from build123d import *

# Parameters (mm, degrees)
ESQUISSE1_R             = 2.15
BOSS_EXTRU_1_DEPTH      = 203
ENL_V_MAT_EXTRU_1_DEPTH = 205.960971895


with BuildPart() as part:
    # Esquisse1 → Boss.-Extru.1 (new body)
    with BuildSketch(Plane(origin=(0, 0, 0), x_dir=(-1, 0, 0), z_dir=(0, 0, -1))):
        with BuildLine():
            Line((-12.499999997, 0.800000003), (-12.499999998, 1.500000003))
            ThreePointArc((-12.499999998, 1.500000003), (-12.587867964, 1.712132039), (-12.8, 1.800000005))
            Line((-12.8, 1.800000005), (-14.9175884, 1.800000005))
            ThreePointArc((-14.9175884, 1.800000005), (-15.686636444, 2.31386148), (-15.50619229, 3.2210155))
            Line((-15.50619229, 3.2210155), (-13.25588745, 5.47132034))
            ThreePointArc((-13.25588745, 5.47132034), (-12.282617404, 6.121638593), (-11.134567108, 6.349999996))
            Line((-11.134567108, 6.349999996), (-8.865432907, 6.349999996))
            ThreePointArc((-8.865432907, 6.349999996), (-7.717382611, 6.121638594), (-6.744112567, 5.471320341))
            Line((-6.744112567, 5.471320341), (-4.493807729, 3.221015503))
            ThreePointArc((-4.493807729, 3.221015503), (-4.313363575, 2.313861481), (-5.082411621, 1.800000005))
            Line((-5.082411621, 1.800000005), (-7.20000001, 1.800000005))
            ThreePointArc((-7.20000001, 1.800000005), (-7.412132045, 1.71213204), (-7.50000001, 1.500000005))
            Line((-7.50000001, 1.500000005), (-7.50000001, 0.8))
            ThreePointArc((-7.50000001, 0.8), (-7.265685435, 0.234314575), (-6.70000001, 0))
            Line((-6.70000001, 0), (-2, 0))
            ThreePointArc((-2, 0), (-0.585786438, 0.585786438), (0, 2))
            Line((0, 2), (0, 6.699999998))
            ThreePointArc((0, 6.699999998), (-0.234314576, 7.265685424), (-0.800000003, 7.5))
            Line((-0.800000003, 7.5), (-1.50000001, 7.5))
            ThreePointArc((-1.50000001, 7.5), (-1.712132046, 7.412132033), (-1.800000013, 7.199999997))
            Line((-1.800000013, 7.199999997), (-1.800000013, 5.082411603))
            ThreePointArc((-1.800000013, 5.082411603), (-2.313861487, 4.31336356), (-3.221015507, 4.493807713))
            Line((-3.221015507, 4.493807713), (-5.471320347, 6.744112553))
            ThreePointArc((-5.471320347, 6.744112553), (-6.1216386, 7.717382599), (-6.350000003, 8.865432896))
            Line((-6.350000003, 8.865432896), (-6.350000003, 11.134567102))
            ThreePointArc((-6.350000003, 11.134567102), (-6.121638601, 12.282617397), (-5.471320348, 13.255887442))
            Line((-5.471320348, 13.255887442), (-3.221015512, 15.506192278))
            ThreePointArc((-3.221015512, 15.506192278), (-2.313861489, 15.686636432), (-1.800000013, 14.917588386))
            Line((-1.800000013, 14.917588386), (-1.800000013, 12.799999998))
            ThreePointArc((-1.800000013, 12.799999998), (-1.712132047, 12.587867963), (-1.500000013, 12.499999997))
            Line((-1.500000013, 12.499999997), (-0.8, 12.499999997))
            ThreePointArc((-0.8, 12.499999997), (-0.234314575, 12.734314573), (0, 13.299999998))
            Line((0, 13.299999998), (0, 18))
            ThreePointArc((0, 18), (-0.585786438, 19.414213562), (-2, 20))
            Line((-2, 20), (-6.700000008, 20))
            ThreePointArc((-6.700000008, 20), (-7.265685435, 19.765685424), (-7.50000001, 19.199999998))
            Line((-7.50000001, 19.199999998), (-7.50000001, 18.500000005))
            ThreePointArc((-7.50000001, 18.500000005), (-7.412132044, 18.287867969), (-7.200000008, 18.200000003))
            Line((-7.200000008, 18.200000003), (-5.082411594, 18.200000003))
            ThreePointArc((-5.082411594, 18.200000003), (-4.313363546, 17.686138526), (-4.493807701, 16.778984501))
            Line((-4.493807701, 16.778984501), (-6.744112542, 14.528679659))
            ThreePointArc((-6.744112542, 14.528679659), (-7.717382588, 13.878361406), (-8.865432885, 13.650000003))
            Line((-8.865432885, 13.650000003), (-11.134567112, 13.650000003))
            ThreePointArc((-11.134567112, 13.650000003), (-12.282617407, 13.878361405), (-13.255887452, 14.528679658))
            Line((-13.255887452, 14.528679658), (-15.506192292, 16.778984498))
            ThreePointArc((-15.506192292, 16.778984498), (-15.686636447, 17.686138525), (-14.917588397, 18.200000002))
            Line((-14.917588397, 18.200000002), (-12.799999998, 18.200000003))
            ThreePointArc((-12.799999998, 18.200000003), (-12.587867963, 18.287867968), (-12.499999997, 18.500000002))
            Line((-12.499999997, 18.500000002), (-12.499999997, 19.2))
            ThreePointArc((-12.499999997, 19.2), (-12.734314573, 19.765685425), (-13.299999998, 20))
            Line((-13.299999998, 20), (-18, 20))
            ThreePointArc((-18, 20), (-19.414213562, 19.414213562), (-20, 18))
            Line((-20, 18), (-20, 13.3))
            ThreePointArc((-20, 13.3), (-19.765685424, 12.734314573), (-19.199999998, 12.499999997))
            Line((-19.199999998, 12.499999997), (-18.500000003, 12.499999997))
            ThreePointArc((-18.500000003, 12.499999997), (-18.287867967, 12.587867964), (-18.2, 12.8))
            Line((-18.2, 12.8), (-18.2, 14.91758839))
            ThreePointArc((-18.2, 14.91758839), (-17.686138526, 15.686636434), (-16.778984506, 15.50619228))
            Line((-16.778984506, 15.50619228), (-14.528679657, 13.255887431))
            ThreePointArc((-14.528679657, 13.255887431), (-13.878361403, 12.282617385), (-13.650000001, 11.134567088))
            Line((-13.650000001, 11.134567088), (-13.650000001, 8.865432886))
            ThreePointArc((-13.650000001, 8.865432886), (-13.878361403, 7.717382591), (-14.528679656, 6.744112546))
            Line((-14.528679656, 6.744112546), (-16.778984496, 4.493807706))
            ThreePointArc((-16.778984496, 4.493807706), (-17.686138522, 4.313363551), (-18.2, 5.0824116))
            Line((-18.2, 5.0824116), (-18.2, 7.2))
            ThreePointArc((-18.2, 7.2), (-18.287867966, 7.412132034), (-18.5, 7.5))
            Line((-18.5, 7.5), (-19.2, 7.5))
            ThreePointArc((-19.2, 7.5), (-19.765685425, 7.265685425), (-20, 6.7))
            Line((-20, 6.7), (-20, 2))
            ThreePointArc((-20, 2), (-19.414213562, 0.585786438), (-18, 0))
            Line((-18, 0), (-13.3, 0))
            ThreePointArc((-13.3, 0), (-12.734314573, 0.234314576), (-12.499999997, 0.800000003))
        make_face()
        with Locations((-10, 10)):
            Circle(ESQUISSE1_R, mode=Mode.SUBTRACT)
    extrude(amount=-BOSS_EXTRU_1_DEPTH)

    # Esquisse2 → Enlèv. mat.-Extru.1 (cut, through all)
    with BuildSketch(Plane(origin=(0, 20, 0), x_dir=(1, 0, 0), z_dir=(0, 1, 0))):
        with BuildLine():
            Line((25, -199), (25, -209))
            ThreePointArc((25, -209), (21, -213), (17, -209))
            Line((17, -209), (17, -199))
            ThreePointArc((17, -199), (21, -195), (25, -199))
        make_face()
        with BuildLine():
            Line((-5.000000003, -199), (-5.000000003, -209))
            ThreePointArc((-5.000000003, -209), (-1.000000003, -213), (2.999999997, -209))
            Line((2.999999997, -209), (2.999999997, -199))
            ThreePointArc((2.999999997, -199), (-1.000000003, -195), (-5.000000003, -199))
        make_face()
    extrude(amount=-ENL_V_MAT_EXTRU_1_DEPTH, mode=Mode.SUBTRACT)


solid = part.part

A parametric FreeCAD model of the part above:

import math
import FreeCAD as App
import Part
import Sketcher

V = App.Vector

doc = App.newDocument("Part")
body = doc.addObject("PartDesign::Body", "Body")

# Sketch on XY plane
sketch1 = doc.addObject("Sketcher::SketchObject", "Sketch")
body.addObject(sketch1)
sketch1.AttachmentSupport = (doc.XY_Plane, [""])
sketch1.MapMode = "FlatFace"
sketch1.addGeometry([
    Part.LineSegment(V(12.5, 0.8, 0), V(12.5, 1.5, 0)),  # 0
    Part.ArcOfCircle(Part.Circle(V(12.8, 1.5, 0), V(0, 0, 1), 0.3), math.radians(90), math.radians(180)),  # 1
    Part.LineSegment(V(12.8, 1.8, 0), V(14.92, 1.8, 0)),  # 2
    Part.ArcOfCircle(Part.Circle(V(14.92, 2.63, 0), V(0, 0, 1), 0.83), math.radians(-90), math.radians(45)),  # 3
    Part.LineSegment(V(15.51, 3.22, 0), V(13.26, 5.47, 0)),  # 4
    Part.ArcOfCircle(Part.Circle(V(11.13, 3.35, 0), V(0, 0, 1), 3), math.radians(45), math.radians(90)),  # 5
    Part.LineSegment(V(11.13, 6.35, 0), V(8.87, 6.35, 0)),  # 6
    Part.ArcOfCircle(Part.Circle(V(8.87, 3.35, 0), V(0, 0, 1), 3), math.radians(90), math.radians(135)),  # 7
    Part.LineSegment(V(6.74, 5.47, 0), V(4.49, 3.22, 0)),  # 8
    Part.ArcOfCircle(Part.Circle(V(5.08, 2.63, 0), V(0, 0, 1), 0.83), math.radians(135), math.radians(270)),  # 9
    Part.LineSegment(V(5.08, 1.8, 0), V(7.2, 1.8, 0)),  # 10
    Part.ArcOfCircle(Part.Circle(V(7.2, 1.5, 0), V(0, 0, 1), 0.3), math.radians(0), math.radians(90)),  # 11
    Part.LineSegment(V(7.5, 1.5, 0), V(7.5, 0.8, 0)),  # 12
    Part.ArcOfCircle(Part.Circle(V(6.7, 0.8, 0), V(0, 0, 1), 0.8), math.radians(-90), math.radians(0)),  # 13
    Part.LineSegment(V(6.7, 0, 0), V(2, 0, 0)),  # 14
    Part.ArcOfCircle(Part.Circle(V(2, 2, 0), V(0, 0, 1), 2), math.radians(-180), math.radians(-90)),  # 15
    Part.LineSegment(V(0, 2, 0), V(0, 6.7, 0)),  # 16
    Part.ArcOfCircle(Part.Circle(V(0.8, 6.7, 0), V(0, 0, 1), 0.8), math.radians(90), math.radians(180)),  # 17
    Part.LineSegment(V(0.8, 7.5, 0), V(1.5, 7.5, 0)),  # 18
    Part.ArcOfCircle(Part.Circle(V(1.5, 7.2, 0), V(0, 0, 1), 0.3), math.radians(0), math.radians(90)),  # 19
    Part.LineSegment(V(1.8, 7.2, 0), V(1.8, 5.08, 0)),  # 20
    Part.ArcOfCircle(Part.Circle(V(2.63, 5.08, 0), V(0, 0, 1), 0.83), math.radians(-180), math.radians(-45)),  # 21
    Part.LineSegment(V(3.22, 4.49, 0), V(5.47, 6.74, 0)),  # 22
    Part.ArcOfCircle(Part.Circle(V(3.35, 8.87, 0), V(0, 0, 1), 3), math.radians(-45), math.radians(0)),  # 23
    Part.LineSegment(V(6.35, 8.87, 0), V(6.35, 11.13, 0)),  # 24
    Part.ArcOfCircle(Part.Circle(V(3.35, 11.13, 0), V(0, 0, 1), 3), math.radians(0), math.radians(45)),  # 25
    Part.LineSegment(V(5.47, 13.26, 0), V(3.22, 15.51, 0)),  # 26
    Part.ArcOfCircle(Part.Circle(V(2.63, 14.92, 0), V(0, 0, 1), 0.83), math.radians(45), math.radians(180)),  # 27
    Part.LineSegment(V(1.8, 14.92, 0), V(1.8, 12.8, 0)),  # 28
    Part.ArcOfCircle(Part.Circle(V(1.5, 12.8, 0), V(0, 0, 1), 0.3), math.radians(-90), math.radians(0)),  # 29
    Part.LineSegment(V(1.5, 12.5, 0), V(0.8, 12.5, 0)),  # 30
    Part.ArcOfCircle(Part.Circle(V(0.8, 13.3, 0), V(0, 0, 1), 0.8), math.radians(-180), math.radians(-90)),  # 31
    Part.LineSegment(V(0, 13.3, 0), V(0, 18, 0)),  # 32
    Part.ArcOfCircle(Part.Circle(V(2, 18, 0), V(0, 0, 1), 2), math.radians(90), math.radians(180)),  # 33
    Part.LineSegment(V(2, 20, 0), V(6.7, 20, 0)),  # 34
    Part.ArcOfCircle(Part.Circle(V(6.7, 19.2, 0), V(0, 0, 1), 0.8), math.radians(0), math.radians(90)),  # 35
    Part.LineSegment(V(7.5, 19.2, 0), V(7.5, 18.5, 0)),  # 36
    Part.ArcOfCircle(Part.Circle(V(7.2, 18.5, 0), V(0, 0, 1), 0.3), math.radians(-90), math.radians(0)),  # 37
    Part.LineSegment(V(7.2, 18.2, 0), V(5.08, 18.2, 0)),  # 38
    Part.ArcOfCircle(Part.Circle(V(5.08, 17.37, 0), V(0, 0, 1), 0.83), math.radians(90), math.radians(225)),  # 39
    Part.LineSegment(V(4.49, 16.78, 0), V(6.74, 14.53, 0)),  # 40
    Part.ArcOfCircle(Part.Circle(V(8.87, 16.65, 0), V(0, 0, 1), 3), math.radians(-135), math.radians(-90)),  # 41
    Part.LineSegment(V(8.87, 13.65, 0), V(11.13, 13.65, 0)),  # 42
    Part.ArcOfCircle(Part.Circle(V(11.13, 16.65, 0), V(0, 0, 1), 3), math.radians(-90), math.radians(-45)),  # 43
    Part.LineSegment(V(13.26, 14.53, 0), V(15.51, 16.78, 0)),  # 44
    Part.ArcOfCircle(Part.Circle(V(14.92, 17.37, 0), V(0, 0, 1), 0.83), math.radians(-45), math.radians(90)),  # 45
    Part.LineSegment(V(14.92, 18.2, 0), V(12.8, 18.2, 0)),  # 46
    Part.ArcOfCircle(Part.Circle(V(12.8, 18.5, 0), V(0, 0, 1), 0.3), math.radians(-180), math.radians(-90)),  # 47
    Part.LineSegment(V(12.5, 18.5, 0), V(12.5, 19.2, 0)),  # 48
    Part.ArcOfCircle(Part.Circle(V(13.3, 19.2, 0), V(0, 0, 1), 0.8), math.radians(90), math.radians(180)),  # 49
    Part.LineSegment(V(13.3, 20, 0), V(18, 20, 0)),  # 50
    Part.ArcOfCircle(Part.Circle(V(18, 18, 0), V(0, 0, 1), 2), math.radians(0), math.radians(90)),  # 51
    Part.LineSegment(V(20, 18, 0), V(20, 13.3, 0)),  # 52
    Part.ArcOfCircle(Part.Circle(V(19.2, 13.3, 0), V(0, 0, 1), 0.8), math.radians(-90), math.radians(0)),  # 53
    Part.LineSegment(V(19.2, 12.5, 0), V(18.5, 12.5, 0)),  # 54
    Part.ArcOfCircle(Part.Circle(V(18.5, 12.8, 0), V(0, 0, 1), 0.3), math.radians(-180), math.radians(-90)),  # 55
    Part.LineSegment(V(18.2, 12.8, 0), V(18.2, 14.92, 0)),  # 56
    Part.ArcOfCircle(Part.Circle(V(17.37, 14.92, 0), V(0, 0, 1), 0.83), math.radians(0), math.radians(135)),  # 57
    Part.LineSegment(V(16.78, 15.51, 0), V(14.53, 13.26, 0)),  # 58
    Part.ArcOfCircle(Part.Circle(V(16.65, 11.13, 0), V(0, 0, 1), 3), math.radians(135), math.radians(180)),  # 59
    Part.LineSegment(V(13.65, 11.13, 0), V(13.65, 8.87, 0)),  # 60
    Part.ArcOfCircle(Part.Circle(V(16.65, 8.87, 0), V(0, 0, 1), 3), math.radians(180), math.radians(225)),  # 61
    Part.LineSegment(V(14.53, 6.74, 0), V(16.78, 4.49, 0)),  # 62
    Part.ArcOfCircle(Part.Circle(V(17.37, 5.08, 0), V(0, 0, 1), 0.83), math.radians(-135), math.radians(0)),  # 63
    Part.LineSegment(V(18.2, 5.08, 0), V(18.2, 7.2, 0)),  # 64
    Part.ArcOfCircle(Part.Circle(V(18.5, 7.2, 0), V(0, 0, 1), 0.3), math.radians(90), math.radians(180)),  # 65
    Part.LineSegment(V(18.5, 7.5, 0), V(19.2, 7.5, 0)),  # 66
    Part.ArcOfCircle(Part.Circle(V(19.2, 6.7, 0), V(0, 0, 1), 0.8), math.radians(0), math.radians(90)),  # 67
    Part.LineSegment(V(20, 6.7, 0), V(20, 2, 0)),  # 68
    Part.ArcOfCircle(Part.Circle(V(18, 2, 0), V(0, 0, 1), 2), math.radians(-90), math.radians(0)),  # 69
    Part.LineSegment(V(18, 0, 0), V(13.3, 0, 0)),  # 70
    Part.ArcOfCircle(Part.Circle(V(13.3, 0.8, 0), V(0, 0, 1), 0.8), math.radians(180), math.radians(270)),  # 71
    Part.Circle(V(10, 10, 0), V(0, 0, 1), 2.15),  # 72
], False)
sketch1.addConstraint([
    Sketcher.Constraint("Tangent", 0, 2, 1, 2),
    Sketcher.Constraint("Tangent", 1, 1, 2, 1),
    Sketcher.Constraint("Tangent", 2, 2, 3, 1),
    Sketcher.Constraint("Tangent", 3, 2, 4, 1),
    Sketcher.Constraint("Tangent", 4, 2, 5, 1),
    Sketcher.Constraint("Tangent", 5, 2, 6, 1),
    Sketcher.Constraint("Tangent", 6, 2, 7, 1),
    Sketcher.Constraint("Tangent", 7, 2, 8, 1),
    Sketcher.Constraint("Tangent", 8, 2, 9, 1),
    Sketcher.Constraint("Tangent", 9, 2, 10, 1),
    Sketcher.Constraint("Tangent", 10, 2, 11, 2),
    Sketcher.Constraint("Tangent", 11, 1, 12, 1),
    Sketcher.Constraint("Tangent", 12, 2, 13, 2),
    Sketcher.Constraint("Tangent", 13, 1, 14, 1),
    Sketcher.Constraint("Tangent", 14, 2, 15, 2),
    Sketcher.Constraint("Tangent", 15, 1, 16, 1),
    Sketcher.Constraint("Tangent", 16, 2, 17, 2),
    Sketcher.Constraint("Tangent", 17, 1, 18, 1),
    Sketcher.Constraint("Tangent", 18, 2, 19, 2),
    Sketcher.Constraint("Tangent", 19, 1, 20, 1),
    Sketcher.Constraint("Tangent", 20, 2, 21, 1),
    Sketcher.Constraint("Tangent", 21, 2, 22, 1),
    Sketcher.Constraint("Tangent", 22, 2, 23, 1),
    Sketcher.Constraint("Tangent", 23, 2, 24, 1),
    Sketcher.Constraint("Tangent", 24, 2, 25, 1),
    Sketcher.Constraint("Tangent", 25, 2, 26, 1),
    Sketcher.Constraint("Tangent", 26, 2, 27, 1),
    Sketcher.Constraint("Tangent", 27, 2, 28, 1),
    Sketcher.Constraint("Tangent", 28, 2, 29, 2),
    Sketcher.Constraint("Tangent", 29, 1, 30, 1),
    Sketcher.Constraint("Tangent", 30, 2, 31, 2),
    Sketcher.Constraint("Tangent", 31, 1, 32, 1),
    Sketcher.Constraint("Tangent", 32, 2, 33, 2),
    Sketcher.Constraint("Tangent", 33, 1, 34, 1),
    Sketcher.Constraint("Tangent", 34, 2, 35, 2),
    Sketcher.Constraint("Tangent", 35, 1, 36, 1),
    Sketcher.Constraint("Tangent", 36, 2, 37, 2),
    Sketcher.Constraint("Tangent", 37, 1, 38, 1),
    Sketcher.Constraint("Tangent", 38, 2, 39, 1),
    Sketcher.Constraint("Tangent", 39, 2, 40, 1),
    Sketcher.Constraint("Tangent", 40, 2, 41, 1),
    Sketcher.Constraint("Tangent", 41, 2, 42, 1),
    Sketcher.Constraint("Tangent", 42, 2, 43, 1),
    Sketcher.Constraint("Tangent", 43, 2, 44, 1),
    Sketcher.Constraint("Tangent", 44, 2, 45, 1),
    Sketcher.Constraint("Tangent", 45, 2, 46, 1),
    Sketcher.Constraint("Tangent", 46, 2, 47, 2),
    Sketcher.Constraint("Tangent", 47, 1, 48, 1),
    Sketcher.Constraint("Tangent", 48, 2, 49, 2),
    Sketcher.Constraint("Tangent", 49, 1, 50, 1),
    Sketcher.Constraint("Tangent", 50, 2, 51, 2),
    Sketcher.Constraint("Tangent", 51, 1, 52, 1),
    Sketcher.Constraint("Tangent", 52, 2, 53, 2),
    Sketcher.Constraint("Tangent", 53, 1, 54, 1),
    Sketcher.Constraint("Tangent", 54, 2, 55, 2),
    Sketcher.Constraint("Tangent", 55, 1, 56, 1),
    Sketcher.Constraint("Tangent", 56, 2, 57, 1),
    Sketcher.Constraint("Tangent", 57, 2, 58, 1),
    Sketcher.Constraint("Tangent", 58, 2, 59, 1),
    Sketcher.Constraint("Tangent", 59, 2, 60, 1),
    Sketcher.Constraint("Tangent", 60, 2, 61, 1),
    Sketcher.Constraint("Tangent", 61, 2, 62, 1),
    Sketcher.Constraint("Tangent", 62, 2, 63, 1),
    Sketcher.Constraint("Tangent", 63, 2, 64, 1),
    Sketcher.Constraint("Tangent", 64, 2, 65, 2),
    Sketcher.Constraint("Tangent", 65, 1, 66, 1),
    Sketcher.Constraint("Tangent", 66, 2, 67, 2),
    Sketcher.Constraint("Tangent", 67, 1, 68, 1),
    Sketcher.Constraint("Tangent", 68, 2, 69, 2),
    Sketcher.Constraint("Tangent", 69, 1, 70, 1),
    Sketcher.Constraint("Tangent", 70, 2, 71, 2),
    Sketcher.Constraint("Tangent", 71, 1, 0, 1),
    Sketcher.Constraint("Vertical", 0),
    Sketcher.Constraint("Horizontal", 2),
    Sketcher.Constraint("Horizontal", 6),
    Sketcher.Constraint("Horizontal", 10),
    Sketcher.Constraint("Vertical", 12),
    Sketcher.Constraint("Horizontal", 14),
    Sketcher.Constraint("Vertical", 16),
    Sketcher.Constraint("Horizontal", 18),
    Sketcher.Constraint("Vertical", 20),
    Sketcher.Constraint("Vertical", 24),
    Sketcher.Constraint("Vertical", 28),
    Sketcher.Constraint("Horizontal", 30),
    Sketcher.Constraint("Vertical", 32),
    Sketcher.Constraint("Horizontal", 34),
    Sketcher.Constraint("Vertical", 36),
    Sketcher.Constraint("Horizontal", 38),
    Sketcher.Constraint("Horizontal", 42),
    Sketcher.Constraint("Horizontal", 46),
    Sketcher.Constraint("Vertical", 48),
    Sketcher.Constraint("Horizontal", 50),
    Sketcher.Constraint("Vertical", 52),
    Sketcher.Constraint("Horizontal", 54),
    Sketcher.Constraint("Vertical", 56),
    Sketcher.Constraint("Vertical", 60),
    Sketcher.Constraint("Vertical", 64),
    Sketcher.Constraint("Horizontal", 66),
    Sketcher.Constraint("Vertical", 68),
    Sketcher.Constraint("Horizontal", 70),
    Sketcher.Constraint("Equal", 5, 7),
    Sketcher.Constraint("Equal", 3, 9),
    Sketcher.Constraint("Equal", 1, 11),
    Sketcher.Constraint("Equal", 13, 17),
    Sketcher.Constraint("Equal", 11, 19),
    Sketcher.Constraint("Equal", 9, 21),
    Sketcher.Constraint("Equal", 7, 23),
    Sketcher.Constraint("Equal", 23, 25),
    Sketcher.Constraint("Equal", 21, 27),
    Sketcher.Constraint("Equal", 19, 29),
    Sketcher.Constraint("Equal", 17, 31),
    Sketcher.Constraint("Equal", 15, 33),
    Sketcher.Constraint("Equal", 31, 35),
    Sketcher.Constraint("Equal", 29, 37),
    Sketcher.Constraint("Equal", 27, 39),
    Sketcher.Constraint("Equal", 25, 41),
    Sketcher.Constraint("Equal", 41, 43),
    Sketcher.Constraint("Equal", 39, 45),
    Sketcher.Constraint("Equal", 37, 47),
    Sketcher.Constraint("Equal", 35, 49),
    Sketcher.Constraint("Equal", 33, 51),
    Sketcher.Constraint("Equal", 49, 53),
    Sketcher.Constraint("Equal", 47, 55),
    Sketcher.Constraint("Equal", 45, 57),
    Sketcher.Constraint("Equal", 43, 59),
    Sketcher.Constraint("Equal", 59, 61),
    Sketcher.Constraint("Equal", 57, 63),
    Sketcher.Constraint("Equal", 55, 65),
    Sketcher.Constraint("Equal", 53, 67),
    Sketcher.Constraint("Equal", 51, 69),
    Sketcher.Constraint("Equal", 67, 71),
    Sketcher.Constraint("PointOnObject", 13, 1, -1),
    Sketcher.Constraint("PointOnObject", 15, 1, -2),
    Sketcher.Constraint("PointOnObject", 31, 1, -2),
    Sketcher.Constraint("PointOnObject", 69, 1, -1),
    Sketcher.Constraint("Perpendicular", 4, 8),
    Sketcher.Constraint("Parallel", 8, 22),
    Sketcher.Constraint("Perpendicular", 22, 26),
    Sketcher.Constraint("Parallel", 26, 40),
    Sketcher.Constraint("Perpendicular", 40, 44),
    Sketcher.Constraint("Parallel", 44, 58),
    Sketcher.Constraint("Perpendicular", 58, 62),
    Sketcher.Constraint("Horizontal", 3, 3, 9, 3),
    Sketcher.Constraint("Horizontal", 39, 3, 45, 3),
    Sketcher.Constraint("Horizontal", 35, 3, 49, 3),
    Sketcher.Constraint("Horizontal", 31, 3, 53, 3),
    Sketcher.Constraint("Horizontal", 27, 3, 57, 3),
    Sketcher.Constraint("Horizontal", 25, 3, 59, 3),
    Sketcher.Constraint("Horizontal", 23, 3, 61, 3),
    Sketcher.Constraint("Horizontal", 21, 3, 63, 3),
    Sketcher.Constraint("Horizontal", 19, 3, 65, 3),
    Sketcher.Constraint("Horizontal", 4, 2, 7, 2),
    Sketcher.Constraint("Vertical", 21, 3, 27, 3),
    Sketcher.Constraint("Vertical", 13, 3, 35, 3),
    Sketcher.Constraint("Vertical", 9, 3, 39, 3),
    Sketcher.Constraint("Vertical", 7, 3, 41, 3),
    Sketcher.Constraint("Vertical", 5, 3, 43, 3),
    Sketcher.Constraint("Vertical", 1, 3, 47, 3),
    Sketcher.Constraint("Vertical", 53, 3, 67, 3),
    Sketcher.Constraint("Equal", 2, 10),
    Sketcher.Constraint("Equal", 34, 50),
    Sketcher.Constraint("Equal", 30, 54),
    Sketcher.Constraint("Equal", 66, 0),
    Sketcher.Constraint("Equal", 70, 16),
    Sketcher.Constraint("Equal", 46, 20),
    Sketcher.Constraint("Equal", 42, 24),
    Sketcher.Constraint("Equal", 20, 28),
    Sketcher.Constraint("Equal", 16, 32),
    Sketcher.Constraint("Equal", 12, 36),
    Sketcher.Constraint("Equal", 8, 22),
    Sketcher.Constraint("Radius", 5, 3.0),
    Sketcher.Constraint("Radius", 15, 2.0),
    Sketcher.Constraint("Diameter", 72, 4.3),
    Sketcher.Constraint("Radius", 1, 0.3),
    Sketcher.Constraint("Radius", 13, 0.8),
    Sketcher.Constraint("DistanceX", 14, 2, 14, 1, 4.7),
    Sketcher.Constraint("DistanceX", 18, 1, 18, 2, 0.7),
    Sketcher.Constraint("DistanceY", -1, 1, 33, 3, 18.0),
    Sketcher.Constraint("DistanceX", -1, 1, 72, 3, 10.0),
    Sketcher.Constraint("DistanceY", -1, 1, 72, 3, 10.0),
    Sketcher.Constraint("DistanceY", -1, 1, 5, 3, 3.35),
    Sketcher.Constraint("Radius", 3, 0.832412),
    Sketcher.Constraint("DistanceX", 2, 1, 2, 2, 2.117588),
])
pad1 = doc.addObject("PartDesign::Pad", "Pad")
body.addObject(pad1)
pad1.Profile = sketch1
pad1.Length = 203

# Sketch on XZ plane
sketch2 = doc.addObject("Sketcher::SketchObject", "Sketch001")
body.addObject(sketch2)
sketch2.AttachmentSupport = (doc.XZ_Plane, [""])
sketch2.MapMode = "FlatFace"
sketch2.AttachmentOffset = App.Placement(V(0, 0, -20), App.Rotation())
sketch2.addGeometry([
    Part.LineSegment(V(25, 209, 0), V(25, 199, 0)),  # 0
    Part.ArcOfCircle(Part.Circle(V(21, 199, 0), V(0, 0, 1), 4), math.radians(180), math.radians(360)),  # 1
    Part.LineSegment(V(17, 199, 0), V(17, 209, 0)),  # 2
    Part.ArcOfCircle(Part.Circle(V(21, 209, 0), V(0, 0, 1), 4), math.radians(0), math.radians(180)),  # 3
    Part.LineSegment(V(-5, 199, 0), V(-5, 209, 0)),  # 4
    Part.ArcOfCircle(Part.Circle(V(-1, 209, 0), V(0, 0, 1), 4), math.radians(0), math.radians(180)),  # 5
    Part.LineSegment(V(3, 209, 0), V(3, 199, 0)),  # 6
    Part.ArcOfCircle(Part.Circle(V(-1, 199, 0), V(0, 0, 1), 4), math.radians(180), math.radians(360)),  # 7
], False)
sketch2.addConstraint([
    Sketcher.Constraint("Tangent", 0, 2, 1, 2),
    Sketcher.Constraint("Tangent", 1, 1, 2, 1),
    Sketcher.Constraint("Tangent", 2, 2, 3, 2),
    Sketcher.Constraint("Tangent", 3, 1, 0, 1),
    Sketcher.Constraint("Tangent", 4, 2, 5, 2),
    Sketcher.Constraint("Tangent", 5, 1, 6, 1),
    Sketcher.Constraint("Tangent", 6, 2, 7, 2),
    Sketcher.Constraint("Tangent", 7, 1, 4, 1),
    Sketcher.Constraint("Vertical", 0),
    Sketcher.Constraint("Vertical", 2),
    Sketcher.Constraint("Vertical", 4),
    Sketcher.Constraint("Vertical", 6),
    Sketcher.Constraint("Equal", 3, 5),
    Sketcher.Constraint("Horizontal", 3, 3, 5, 3),
    Sketcher.Constraint("Horizontal", 1, 3, 7, 3),
    Sketcher.Constraint("Radius", 1, 4.0),
    Sketcher.Constraint("DistanceY", 0, 2, 0, 1, 10.0),
    Sketcher.Constraint("DistanceX", -1, 1, 1, 3, 21.0),
    Sketcher.Constraint("DistanceY", -1, 1, 1, 3, 199.0),
    Sketcher.Constraint("DistanceX", 5, 3, -1, 1, 1.0),
])
pocket1 = doc.addObject("PartDesign::Pocket", "Pocket")
body.addObject(pocket1)
pocket1.Profile = sketch2
pocket1.Type = "ThroughAll"
pocket1.Reversed = True

doc.recompute()
